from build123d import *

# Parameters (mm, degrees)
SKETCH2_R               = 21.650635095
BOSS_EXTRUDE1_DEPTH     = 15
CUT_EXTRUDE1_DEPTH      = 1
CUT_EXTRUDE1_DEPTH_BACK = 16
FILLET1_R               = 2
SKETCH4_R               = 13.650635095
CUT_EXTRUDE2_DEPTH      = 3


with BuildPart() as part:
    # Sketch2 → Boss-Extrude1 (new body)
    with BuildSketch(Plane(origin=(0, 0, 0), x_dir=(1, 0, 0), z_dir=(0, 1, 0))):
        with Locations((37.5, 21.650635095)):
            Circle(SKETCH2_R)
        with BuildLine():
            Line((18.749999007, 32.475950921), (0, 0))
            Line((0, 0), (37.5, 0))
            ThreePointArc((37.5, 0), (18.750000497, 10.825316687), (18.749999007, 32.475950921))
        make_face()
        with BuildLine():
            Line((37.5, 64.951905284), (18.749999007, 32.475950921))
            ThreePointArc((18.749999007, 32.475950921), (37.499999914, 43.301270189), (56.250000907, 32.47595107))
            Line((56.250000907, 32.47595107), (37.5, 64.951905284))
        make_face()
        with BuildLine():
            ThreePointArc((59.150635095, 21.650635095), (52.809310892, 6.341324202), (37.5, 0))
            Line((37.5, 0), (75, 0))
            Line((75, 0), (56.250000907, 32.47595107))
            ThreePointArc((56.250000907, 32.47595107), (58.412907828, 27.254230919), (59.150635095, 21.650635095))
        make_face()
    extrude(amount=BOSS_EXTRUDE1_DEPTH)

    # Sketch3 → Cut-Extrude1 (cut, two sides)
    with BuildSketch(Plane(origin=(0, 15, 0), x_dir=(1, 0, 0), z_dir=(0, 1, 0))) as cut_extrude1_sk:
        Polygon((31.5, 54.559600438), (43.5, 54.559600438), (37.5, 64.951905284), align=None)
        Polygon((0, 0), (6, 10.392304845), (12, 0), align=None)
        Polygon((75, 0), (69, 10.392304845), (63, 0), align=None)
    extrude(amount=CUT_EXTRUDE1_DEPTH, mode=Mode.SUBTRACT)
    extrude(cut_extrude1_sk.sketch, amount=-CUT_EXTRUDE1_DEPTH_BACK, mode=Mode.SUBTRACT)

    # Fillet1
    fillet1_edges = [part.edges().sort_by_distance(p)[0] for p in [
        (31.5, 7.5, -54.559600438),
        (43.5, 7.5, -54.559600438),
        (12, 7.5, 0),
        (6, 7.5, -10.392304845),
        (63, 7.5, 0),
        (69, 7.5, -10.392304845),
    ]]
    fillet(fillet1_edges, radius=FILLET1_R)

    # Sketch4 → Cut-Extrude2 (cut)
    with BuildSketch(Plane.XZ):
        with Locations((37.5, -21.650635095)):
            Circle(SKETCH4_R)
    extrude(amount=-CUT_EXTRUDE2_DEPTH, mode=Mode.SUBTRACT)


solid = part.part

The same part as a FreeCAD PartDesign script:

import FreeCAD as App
import Part
import Sketcher
from FreeCAD import Vector
Q = App.Units.Quantity


def edges_at(feature, points):
    """Names of the edges that pass closest to the given points."""
    edges = feature.Shape.Edges
    near = lambda p: min(range(len(edges)), key=lambda i: edges[i].distToShape(Part.Vertex(*p))[0])
    return sorted({f"Edge{near(p) + 1}" for p in points})

doc = App.newDocument("Part")
body = doc.addObject("PartDesign::Body", "Body")

sketch1 = body.newObject("Sketcher::SketchObject", "Sketch")
sketch1.AttachmentSupport = (doc.getObject("XZ_Plane"), [""])
sketch1.MapMode = "FlatFace"
sketch1.addGeometry([
    Part.LineSegment(Vector(19, -32, 0), Vector(0, 0, 0)),
    Part.LineSegment(Vector(0, 0, 0), Vector(75, 0, 0)),
    Part.LineSegment(Vector(75, 0, 0), Vector(56, -32, 0)),
    Part.LineSegment(Vector(56, -32, 0), Vector(38, -65, 0)),
    Part.LineSegment(Vector(38, -65, 0), Vector(19, -32, 0)),
], False)
sketch1.addConstraint([
    Sketcher.Constraint("Coincident", 0, 2, 1, 1),
    Sketcher.Constraint("Coincident", 1, 2, 2, 1),
    Sketcher.Constraint("Coincident", 2, 2, 3, 1),
    Sketcher.Constraint("Coincident", 3, 2, 4, 1),
    Sketcher.Constraint("Coincident", 4, 2, 0, 1),
    Sketcher.Constraint("Horizontal", 1),
    Sketcher.Constraint("Coincident", 0, 2, -1, 1),
    Sketcher.Constraint("Parallel", 2, 3),
    Sketcher.Constraint("Parallel", 0, 4),
    Sketcher.Constraint("Horizontal", 2, 2, 4, 2),
    Sketcher.Constraint("Equal", 0, 2),
    Sketcher.Constraint("DistanceX", 1, 1, 1, 2, 75.0),
    Sketcher.Constraint("Angle", 0, Q("120 deg")),
    Sketcher.Constraint("Distance", 0, 37.499998),
])
pad1 = body.newObject("PartDesign::Pad", "Pad")
pad1.Profile = sketch1
pad1.Length = 15
pad1.Reversed = True

sketch2 = body.newObject("Sketcher::SketchObject", "Sketch001")
sketch2.AttachmentSupport = (doc.getObject("XZ_Plane"), [""])
sketch2.MapMode = "FlatFace"
sketch2.AttachmentOffset = App.Placement(Vector(0, 0, -15), App.Rotation())
sketch2.addGeometry([
    Part.LineSegment(Vector(32, -55, 0), Vector(44, -55, 0)),
    Part.LineSegment(Vector(44, -55, 0), Vector(38, -65, 0)),
    Part.LineSegment(Vector(38, -65, 0), Vector(32, -55, 0)),
    Part.LineSegment(Vector(6, -10, 0), Vector(0, 0, 0)),
    Part.LineSegment(Vector(0, 0, 0), Vector(12, 0, 0)),
    Part.LineSegment(Vector(12, 0, 0), Vector(6, -10, 0)),
    Part.LineSegment(Vector(75, 0, 0), Vector(69, -10, 0)),
    Part.LineSegment(Vector(69, -10, 0), Vector(63, 0, 0)),
    Part.LineSegment(Vector(63, 0, 0), Vector(75, 0, 0)),
], False)
sketch2.addConstraint([
    Sketcher.Constraint("Coincident", 0, 2, 1, 1),
    Sketcher.Constraint("Coincident", 1, 2, 2, 1),
    Sketcher.Constraint("Coincident", 2, 2, 0, 1),
    Sketcher.Constraint("Coincident", 3, 2, 4, 1),
    Sketcher.Constraint("Coincident", 4, 2, 5, 1),
    Sketcher.Constraint("Coincident", 5, 2, 3, 1),
    Sketcher.Constraint("Coincident", 6, 2, 7, 1),
    Sketcher.Constraint("Coincident", 7, 2, 8, 1),
    Sketcher.Constraint("Coincident", 8, 2, 6, 1),
    Sketcher.Constraint("Horizontal", 0),
    Sketcher.Constraint("Horizontal", 4),
    Sketcher.Constraint("Horizontal", 8),
    Sketcher.Constraint("Coincident", 3, 2, -1, 1),
    Sketcher.Constraint("PointOnObject", 7, 2, -1),
    Sketcher.Constraint("Parallel", 2, 3),
    Sketcher.Constraint("Parallel", 1, 5),
    Sketcher.Constraint("Parallel", 5, 6),
    Sketcher.Constraint("Parallel", 3, 7),
    Sketcher.Constraint("Horizontal", 5, 2, 6, 2),
    Sketcher.Constraint("Equal", 0, 4),
    Sketcher.Constraint("Equal", 1, 2),
    Sketcher.Constraint("DistanceX", 0, 1, 0, 2, 12.0),
    Sketcher.Constraint("Angle", 1, Q("-120 deg")),
    Sketcher.Constraint("DistanceX", -1, 1, 6, 2, 69.0),
    Sketcher.Constraint("DistanceX", -1, 1, 0, 2, 43.5),
    Sketcher.Constraint("DistanceY", 0, 2, -1, 1, 54.5596),
])
pocket1 = body.newObject("PartDesign::Pocket", "Pocket")
pocket1.Profile = sketch2
pocket1.Type = "ThroughAll"
pocket1.Midplane = True
doc.recompute()

fillet = body.newObject("PartDesign::Fillet", "Fillet")
fillet.Base = (pocket1, edges_at(pocket1, [
    (31.5, 7.5, -54.56),
    (43.5, 7.5, -54.56),
    (12, 7.5, 0),
    (6, 7.5, -10.392),
    (63, 7.5, 0),
    (69, 7.5, -10.392),
]))
fillet.Radius = 2

sketch3 = body.newObject("Sketcher::SketchObject", "Sketch002")
sketch3.AttachmentSupport = (doc.getObject("XZ_Plane"), [""])
sketch3.MapMode = "FlatFace"
sketch3.addGeometry(Part.Circle(Vector(38, -22, 0), Vector(0, 0, 1), 14), False)
sketch3.addConstraint([
    Sketcher.Constraint("DistanceX", -1, 1, 0, 3, 37.5),
    Sketcher.Constraint("Diameter", 0, 27.30127),
    Sketcher.Constraint("DistanceY", 0, 3, -1, 1, 21.650635),
])
pocket2 = body.newObject("PartDesign::Pocket", "Pocket001")
pocket2.Profile = sketch3
pocket2.Length = 3

doc.recompute()
